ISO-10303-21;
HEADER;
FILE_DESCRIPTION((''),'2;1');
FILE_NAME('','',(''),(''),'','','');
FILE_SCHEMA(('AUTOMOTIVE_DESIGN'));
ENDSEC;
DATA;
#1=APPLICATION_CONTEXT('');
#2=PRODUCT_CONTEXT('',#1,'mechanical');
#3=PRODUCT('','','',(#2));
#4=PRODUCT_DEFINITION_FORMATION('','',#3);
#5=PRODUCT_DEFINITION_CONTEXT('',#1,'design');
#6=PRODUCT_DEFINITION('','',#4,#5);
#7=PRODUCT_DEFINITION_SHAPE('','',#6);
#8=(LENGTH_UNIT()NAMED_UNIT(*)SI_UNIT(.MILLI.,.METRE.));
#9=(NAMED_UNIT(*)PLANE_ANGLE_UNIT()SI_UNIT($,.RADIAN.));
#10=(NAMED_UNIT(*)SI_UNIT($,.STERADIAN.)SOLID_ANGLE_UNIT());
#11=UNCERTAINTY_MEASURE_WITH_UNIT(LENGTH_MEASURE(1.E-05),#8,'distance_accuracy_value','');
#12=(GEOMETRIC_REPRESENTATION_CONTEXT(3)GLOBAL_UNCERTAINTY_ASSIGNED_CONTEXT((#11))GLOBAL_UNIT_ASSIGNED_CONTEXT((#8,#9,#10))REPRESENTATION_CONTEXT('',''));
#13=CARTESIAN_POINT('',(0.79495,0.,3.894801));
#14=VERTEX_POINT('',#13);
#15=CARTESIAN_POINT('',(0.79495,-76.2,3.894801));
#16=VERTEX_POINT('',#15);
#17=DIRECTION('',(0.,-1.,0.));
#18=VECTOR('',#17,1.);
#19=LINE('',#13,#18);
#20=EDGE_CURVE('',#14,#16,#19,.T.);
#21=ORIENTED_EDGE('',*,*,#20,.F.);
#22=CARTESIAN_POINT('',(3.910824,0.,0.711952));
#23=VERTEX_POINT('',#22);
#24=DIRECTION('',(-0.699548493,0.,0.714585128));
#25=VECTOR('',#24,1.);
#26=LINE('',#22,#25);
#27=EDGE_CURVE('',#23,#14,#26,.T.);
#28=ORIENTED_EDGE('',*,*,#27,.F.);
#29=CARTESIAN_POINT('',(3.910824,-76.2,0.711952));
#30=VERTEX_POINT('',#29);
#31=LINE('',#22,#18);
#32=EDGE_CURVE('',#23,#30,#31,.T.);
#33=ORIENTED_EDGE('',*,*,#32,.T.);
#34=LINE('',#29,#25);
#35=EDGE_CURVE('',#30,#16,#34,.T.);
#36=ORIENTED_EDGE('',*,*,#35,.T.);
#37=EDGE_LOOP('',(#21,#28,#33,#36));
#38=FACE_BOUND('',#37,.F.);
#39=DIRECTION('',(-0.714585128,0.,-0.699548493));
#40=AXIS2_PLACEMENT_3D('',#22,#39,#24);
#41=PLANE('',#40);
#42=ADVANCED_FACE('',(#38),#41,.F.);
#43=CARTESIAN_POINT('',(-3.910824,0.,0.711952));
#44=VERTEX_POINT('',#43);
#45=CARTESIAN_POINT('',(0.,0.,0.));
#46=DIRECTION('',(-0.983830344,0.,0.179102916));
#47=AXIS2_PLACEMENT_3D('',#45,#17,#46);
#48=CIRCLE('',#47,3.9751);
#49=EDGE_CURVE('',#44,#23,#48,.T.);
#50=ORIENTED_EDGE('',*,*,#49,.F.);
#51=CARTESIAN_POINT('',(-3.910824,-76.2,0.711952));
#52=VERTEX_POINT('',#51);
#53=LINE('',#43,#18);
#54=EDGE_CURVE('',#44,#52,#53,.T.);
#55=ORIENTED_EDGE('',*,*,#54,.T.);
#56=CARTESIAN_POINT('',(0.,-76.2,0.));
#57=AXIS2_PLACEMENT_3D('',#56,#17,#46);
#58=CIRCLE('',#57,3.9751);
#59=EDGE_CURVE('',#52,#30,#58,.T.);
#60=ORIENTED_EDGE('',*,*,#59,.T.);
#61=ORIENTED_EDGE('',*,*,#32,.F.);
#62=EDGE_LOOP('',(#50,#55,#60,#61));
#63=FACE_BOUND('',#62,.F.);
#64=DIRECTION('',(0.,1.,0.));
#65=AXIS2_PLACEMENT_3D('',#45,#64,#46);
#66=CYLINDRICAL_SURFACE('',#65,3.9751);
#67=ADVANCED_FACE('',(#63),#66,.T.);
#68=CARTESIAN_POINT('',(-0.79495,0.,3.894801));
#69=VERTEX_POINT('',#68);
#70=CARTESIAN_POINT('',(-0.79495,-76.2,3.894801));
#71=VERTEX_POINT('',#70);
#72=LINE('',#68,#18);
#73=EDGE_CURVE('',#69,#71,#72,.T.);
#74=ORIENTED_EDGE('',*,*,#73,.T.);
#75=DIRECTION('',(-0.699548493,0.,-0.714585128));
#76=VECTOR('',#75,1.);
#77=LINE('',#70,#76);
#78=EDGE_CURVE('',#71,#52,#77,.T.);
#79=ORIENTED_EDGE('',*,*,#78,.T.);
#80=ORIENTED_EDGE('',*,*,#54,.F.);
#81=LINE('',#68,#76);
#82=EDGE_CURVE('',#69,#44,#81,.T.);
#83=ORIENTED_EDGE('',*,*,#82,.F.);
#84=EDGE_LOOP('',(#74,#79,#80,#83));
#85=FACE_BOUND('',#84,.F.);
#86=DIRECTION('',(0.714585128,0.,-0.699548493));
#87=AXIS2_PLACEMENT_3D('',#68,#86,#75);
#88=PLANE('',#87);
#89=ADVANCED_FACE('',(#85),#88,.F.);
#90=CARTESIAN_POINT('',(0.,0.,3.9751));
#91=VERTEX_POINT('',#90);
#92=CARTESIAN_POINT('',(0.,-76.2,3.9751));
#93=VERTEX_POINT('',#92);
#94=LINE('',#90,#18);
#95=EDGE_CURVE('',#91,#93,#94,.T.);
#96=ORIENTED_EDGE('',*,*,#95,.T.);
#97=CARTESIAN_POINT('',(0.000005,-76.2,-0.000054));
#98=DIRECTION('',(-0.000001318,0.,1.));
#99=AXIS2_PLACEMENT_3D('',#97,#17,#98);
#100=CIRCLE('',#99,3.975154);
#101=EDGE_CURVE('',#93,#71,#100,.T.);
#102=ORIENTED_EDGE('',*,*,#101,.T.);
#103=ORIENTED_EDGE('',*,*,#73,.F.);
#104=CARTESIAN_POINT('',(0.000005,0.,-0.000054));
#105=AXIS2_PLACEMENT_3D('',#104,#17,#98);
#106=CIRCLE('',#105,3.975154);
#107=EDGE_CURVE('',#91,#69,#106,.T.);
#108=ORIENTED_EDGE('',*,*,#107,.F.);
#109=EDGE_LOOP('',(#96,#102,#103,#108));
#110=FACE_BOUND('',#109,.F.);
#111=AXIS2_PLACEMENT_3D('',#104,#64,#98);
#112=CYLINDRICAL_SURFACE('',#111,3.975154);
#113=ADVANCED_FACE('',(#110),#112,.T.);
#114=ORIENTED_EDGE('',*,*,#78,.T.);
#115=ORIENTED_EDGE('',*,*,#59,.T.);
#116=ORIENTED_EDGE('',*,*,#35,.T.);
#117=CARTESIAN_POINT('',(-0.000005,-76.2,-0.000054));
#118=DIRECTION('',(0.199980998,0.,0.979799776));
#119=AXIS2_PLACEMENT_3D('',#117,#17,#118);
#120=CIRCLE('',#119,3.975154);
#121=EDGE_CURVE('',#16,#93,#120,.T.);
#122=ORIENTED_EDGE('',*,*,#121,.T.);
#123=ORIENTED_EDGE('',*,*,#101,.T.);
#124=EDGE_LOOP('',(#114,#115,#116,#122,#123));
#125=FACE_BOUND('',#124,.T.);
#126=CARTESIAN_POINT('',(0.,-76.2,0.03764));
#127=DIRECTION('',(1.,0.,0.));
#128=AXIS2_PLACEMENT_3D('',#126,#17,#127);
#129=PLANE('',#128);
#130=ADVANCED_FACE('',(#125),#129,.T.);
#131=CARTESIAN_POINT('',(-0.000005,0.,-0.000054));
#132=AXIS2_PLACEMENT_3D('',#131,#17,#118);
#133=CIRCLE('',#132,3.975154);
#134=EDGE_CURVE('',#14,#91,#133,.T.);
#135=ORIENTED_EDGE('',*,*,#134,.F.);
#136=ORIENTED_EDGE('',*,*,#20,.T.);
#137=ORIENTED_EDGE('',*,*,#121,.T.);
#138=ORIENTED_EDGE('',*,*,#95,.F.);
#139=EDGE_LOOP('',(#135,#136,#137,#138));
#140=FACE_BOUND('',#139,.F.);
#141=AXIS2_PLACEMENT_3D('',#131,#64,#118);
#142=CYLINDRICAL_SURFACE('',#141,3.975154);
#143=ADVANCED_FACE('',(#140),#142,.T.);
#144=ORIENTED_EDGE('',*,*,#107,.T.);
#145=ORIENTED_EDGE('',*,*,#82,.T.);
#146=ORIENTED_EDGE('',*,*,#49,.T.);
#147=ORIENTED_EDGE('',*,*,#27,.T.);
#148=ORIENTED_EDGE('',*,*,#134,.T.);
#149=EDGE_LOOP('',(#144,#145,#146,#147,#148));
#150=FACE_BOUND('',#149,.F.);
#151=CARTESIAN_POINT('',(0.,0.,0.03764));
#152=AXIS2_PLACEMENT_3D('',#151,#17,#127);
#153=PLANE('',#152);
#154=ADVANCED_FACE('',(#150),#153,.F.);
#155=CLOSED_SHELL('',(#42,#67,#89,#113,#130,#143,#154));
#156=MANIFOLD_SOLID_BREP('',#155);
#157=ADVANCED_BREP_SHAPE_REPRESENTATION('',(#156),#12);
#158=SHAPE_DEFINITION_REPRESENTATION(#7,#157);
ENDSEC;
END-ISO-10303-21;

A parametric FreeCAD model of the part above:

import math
import FreeCAD as App
import Part
import Sketcher
from FreeCAD import Vector
Q = App.Units.Quantity

doc = App.newDocument("Part")
body = doc.addObject("PartDesign::Body", "Body")

sketch1 = doc.addObject("Sketcher::SketchObject", "Sketch")
body.addObject(sketch1)
sketch1.AttachmentSupport = (doc.XZ_Plane, [""])
sketch1.MapMode = "FlatFace"
sketch1.addGeometry(Part.LineSegment(Vector(3.9, 0.7, 0), Vector(0.8, 3.9, 0)), False)
sketch1.addGeometry(Part.ArcOfCircle(Part.Circle(Vector(0, 0, 0), Vector(0, 0, 1), 4), math.radians(78.46), math.radians(90)), False)
sketch1.addGeometry(Part.ArcOfCircle(Part.Circle(Vector(0, 0, 0), Vector(0, 0, 1), 4), math.radians(90), math.radians(101.54)), False)
sketch1.addGeometry(Part.LineSegment(Vector(-0.8, 3.9, 0), Vector(-3.9, 0.7, 0)), False)
sketch1.addGeometry(Part.ArcOfCircle(Part.Circle(Vector(0, 0, 0), Vector(0, 0, 1), 4), math.radians(170), math.radians(370)), False)
sketch1.addConstraint(Sketcher.Constraint("Coincident", 0, 2, 1, 1))
sketch1.addConstraint(Sketcher.Constraint("Coincident", 1, 2, 2, 1))
sketch1.addConstraint(Sketcher.Constraint("Coincident", 2, 2, 3, 1))
sketch1.addConstraint(Sketcher.Constraint("Coincident", 3, 2, 4, 1))
sketch1.addConstraint(Sketcher.Constraint("Coincident", 4, 2, 0, 1))
sketch1.addConstraint(Sketcher.Constraint("Coincident", 4, 3, -1, 1))
sketch1.addConstraint(Sketcher.Constraint("Equal", 1, 2))
sketch1.addConstraint(Sketcher.Constraint("Symmetric", 0, 2, 2, 2, -2))
sketch1.addConstraint(Sketcher.Constraint("PointOnObject", 1, 2, -2))
sketch1.addConstraint(Sketcher.Constraint("Horizontal", 3, 2, 4, 2))
sketch1.addConstraint(Sketcher.Constraint("Radius", 4, Q("0.1565 in")))
sketch1.addConstraint(Sketcher.Constraint("DistanceY", -1, 1, 1, 2, Q("0.1565 in")))
sketch1.addConstraint(Sketcher.Constraint("Radius", 1, Q("3.975154 mm")))
sketch1.addConstraint(Sketcher.Constraint("DistanceY", -1, 1, 0, 2, Q("3.894801 mm")))
sketch1.addConstraint(Sketcher.Constraint("DistanceX", 2, 2, 0, 2, Q("1.5899 mm")))
sketch1.addConstraint(Sketcher.Constraint("Distance", 0, Q("4.454122 mm")))
pad1 = doc.addObject("PartDesign::Pad", "Pad")
body.addObject(pad1)
pad1.Profile = sketch1
pad1.Length = Q("3 in")

doc.recompute()
